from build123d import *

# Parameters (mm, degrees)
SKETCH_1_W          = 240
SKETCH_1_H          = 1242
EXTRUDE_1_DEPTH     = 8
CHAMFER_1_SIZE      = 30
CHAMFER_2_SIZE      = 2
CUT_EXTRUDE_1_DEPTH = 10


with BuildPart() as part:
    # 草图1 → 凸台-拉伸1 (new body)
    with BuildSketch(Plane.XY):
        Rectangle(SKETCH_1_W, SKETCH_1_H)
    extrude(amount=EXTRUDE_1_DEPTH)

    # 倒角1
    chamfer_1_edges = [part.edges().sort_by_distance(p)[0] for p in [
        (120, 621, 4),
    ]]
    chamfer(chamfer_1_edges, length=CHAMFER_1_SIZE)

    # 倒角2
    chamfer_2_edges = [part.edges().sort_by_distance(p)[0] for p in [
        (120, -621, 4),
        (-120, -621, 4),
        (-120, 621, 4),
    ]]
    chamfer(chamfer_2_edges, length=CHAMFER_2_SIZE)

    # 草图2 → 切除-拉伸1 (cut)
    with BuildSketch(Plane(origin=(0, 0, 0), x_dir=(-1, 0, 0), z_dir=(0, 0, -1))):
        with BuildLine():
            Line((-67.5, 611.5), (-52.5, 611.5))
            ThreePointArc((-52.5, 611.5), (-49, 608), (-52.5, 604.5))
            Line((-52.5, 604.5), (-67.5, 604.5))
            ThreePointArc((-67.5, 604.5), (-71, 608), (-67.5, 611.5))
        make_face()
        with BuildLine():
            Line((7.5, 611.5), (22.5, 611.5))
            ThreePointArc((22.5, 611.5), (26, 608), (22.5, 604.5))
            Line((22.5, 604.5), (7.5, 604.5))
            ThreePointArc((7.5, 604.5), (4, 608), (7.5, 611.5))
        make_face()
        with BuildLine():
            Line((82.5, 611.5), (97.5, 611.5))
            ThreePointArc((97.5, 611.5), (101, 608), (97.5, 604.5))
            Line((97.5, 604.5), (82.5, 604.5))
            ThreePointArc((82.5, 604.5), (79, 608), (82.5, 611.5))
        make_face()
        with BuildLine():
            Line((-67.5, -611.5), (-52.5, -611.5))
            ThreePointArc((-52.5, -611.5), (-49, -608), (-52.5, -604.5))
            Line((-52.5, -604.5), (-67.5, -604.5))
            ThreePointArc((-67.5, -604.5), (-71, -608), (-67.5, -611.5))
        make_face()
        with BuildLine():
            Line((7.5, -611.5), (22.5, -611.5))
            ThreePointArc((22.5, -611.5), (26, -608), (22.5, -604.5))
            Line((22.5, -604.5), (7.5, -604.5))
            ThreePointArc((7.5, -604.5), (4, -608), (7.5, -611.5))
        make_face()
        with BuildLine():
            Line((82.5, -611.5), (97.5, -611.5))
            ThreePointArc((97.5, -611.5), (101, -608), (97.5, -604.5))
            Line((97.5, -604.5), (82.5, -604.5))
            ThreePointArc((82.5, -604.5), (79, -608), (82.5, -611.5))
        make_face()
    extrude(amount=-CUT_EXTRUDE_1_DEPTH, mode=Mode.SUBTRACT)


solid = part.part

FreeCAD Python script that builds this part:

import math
import FreeCAD as App
import Part
import Sketcher

V = App.Vector
Q = App.Units.Quantity


def edges_at(feature, points):
    """Names of the edges that pass closest to the given points."""
    edges = feature.Shape.Edges
    near = lambda p: min(range(len(edges)), key=lambda i: edges[i].distToShape(Part.Vertex(*p))[0])
    return sorted({f"Edge{near(p) + 1}" for p in points})


def add_polygon(sketch, points):
    """Adds a closed chain of lines whose ends are joined by coincident constraints."""
    first, n = sketch.GeometryCount, len(points)
    for a, b in zip(points, points[1:] + points[:1]):
        sketch.addGeometry(Part.LineSegment(App.Vector(*a, 0), App.Vector(*b, 0)), False)
    for i in range(n):
        sketch.addConstraint(Sketcher.Constraint("Coincident", first + i, 2, first + (i + 1) % n, 1))

doc = App.newDocument("Part")
params = doc.addObject("Spreadsheet::Sheet", "Params")
for row, (alias, value) in enumerate([
    ("sketch1_width", "240 mm"),
    ("sketch1_height", "1242 mm"),
    ("pad1_length", "8 mm"),
    ("chamfer_size", "30 mm"),
    ("chamfer2_size", "2 mm"),
    ("sketch2_radius", "3.5 mm"),
    ("sketch2_width", "15 mm"),
    ("pocket1_length", "10 mm"),
], start=1):
    params.set(f"A{row}", alias)
    params.set(f"B{row}", "=" + value)
    params.setAlias(f"B{row}", alias)

body = doc.addObject("PartDesign::Body", "Body")

sketch1 = doc.addObject("Sketcher::SketchObject", "Sketch")
body.addObject(sketch1)
sketch1.AttachmentSupport = (doc.XY_Plane, [""])
sketch1.MapMode = "FlatFace"
add_polygon(sketch1, [(-120, 621), (-120, -621), (120, -621), (120, 621)])
sketch1.addConstraint([
    Sketcher.Constraint("Vertical", 0),
    Sketcher.Constraint("Horizontal", 1),
    Sketcher.Constraint("Vertical", 2),
    Sketcher.Constraint("Horizontal", 3),
    Sketcher.Constraint("Symmetric", 0, 2, 2, 2, -1, 1),
    Sketcher.Constraint("DistanceX", 1, 1, 1, 2, Q("240 mm")),
    Sketcher.Constraint("DistanceY", 0, 2, 0, 1, Q("1242 mm")),
])
sketch1.setExpression("Constraints[9]", "Params.sketch1_width")
sketch1.setExpression("Constraints[10]", "Params.sketch1_height")
pad1 = doc.addObject("PartDesign::Pad", "Pad")
body.addObject(pad1)
pad1.Profile = sketch1
pad1.setExpression("Length", "Params.pad1_length")
doc.recompute()

chamfer = doc.addObject("PartDesign::Chamfer", "Chamfer")
body.addObject(chamfer)
chamfer.Base = (pad1, edges_at(pad1, [(120, 621, 4)]))
chamfer.setExpression("Size", "Params.chamfer_size")
doc.recompute()

chamfer2 = doc.addObject("PartDesign::Chamfer", "Chamfer001")
body.addObject(chamfer2)
chamfer2.Base = (chamfer, edges_at(chamfer, [(120, -621, 4), (-120, -621, 4), (-120, 621, 4)]))
chamfer2.setExpression("Size", "Params.chamfer2_size")

sketch2 = doc.addObject("Sketcher::SketchObject", "Sketch001")
body.addObject(sketch2)
sketch2.AttachmentSupport = (doc.XY_Plane, [""])
sketch2.MapMode = "FlatFace"
sketch2.addGeometry([
    Part.LineSegment(V(52.5, 611.5, 0), V(67.5, 611.5, 0)),
    Part.ArcOfCircle(Part.Circle(V(67.5, 608, 0), V(0, 0, 1), 3.5), math.radians(-90), math.radians(90)),
    Part.LineSegment(V(67.5, 604.5, 0), V(52.5, 604.5, 0)),
    Part.ArcOfCircle(Part.Circle(V(52.5, 608, 0), V(0, 0, 1), 3.5), math.radians(90), math.radians(270)),
    Part.LineSegment(V(-22.5, 611.5, 0), V(-7.5, 611.5, 0)),
    Part.ArcOfCircle(Part.Circle(V(-7.5, 608, 0), V(0, 0, 1), 3.5), math.radians(-90), math.radians(90)),
    Part.LineSegment(V(-7.5, 604.5, 0), V(-22.5, 604.5, 0)),
    Part.ArcOfCircle(Part.Circle(V(-22.5, 608, 0), V(0, 0, 1), 3.5), math.radians(90), math.radians(270)),
    Part.LineSegment(V(-97.5, 611.5, 0), V(-82.5, 611.5, 0)),
    Part.ArcOfCircle(Part.Circle(V(-82.5, 608, 0), V(0, 0, 1), 3.5), math.radians(-90), math.radians(90)),
    Part.LineSegment(V(-82.5, 604.5, 0), V(-97.5, 604.5, 0)),
    Part.ArcOfCircle(Part.Circle(V(-97.5, 608, 0), V(0, 0, 1), 3.5), math.radians(90), math.radians(270)),
    Part.LineSegment(V(67.5, -611.5, 0), V(52.5, -611.5, 0)),
    Part.ArcOfCircle(Part.Circle(V(52.5, -608, 0), V(0, 0, 1), 3.5), math.radians(90), math.radians(270)),
    Part.LineSegment(V(52.5, -604.5, 0), V(67.5, -604.5, 0)),
    Part.ArcOfCircle(Part.Circle(V(67.5, -608, 0), V(0, 0, 1), 3.5), math.radians(-90), math.radians(90)),
    Part.LineSegment(V(-7.5, -611.5, 0), V(-22.5, -611.5, 0)),
    Part.ArcOfCircle(Part.Circle(V(-22.5, -608, 0), V(0, 0, 1), 3.5), math.radians(90), math.radians(270)),
    Part.LineSegment(V(-22.5, -604.5, 0), V(-7.5, -604.5, 0)),
    Part.ArcOfCircle(Part.Circle(V(-7.5, -608, 0), V(0, 0, 1), 3.5), math.radians(-90), math.radians(90)),
    Part.LineSegment(V(-82.5, -611.5, 0), V(-97.5, -611.5, 0)),
    Part.ArcOfCircle(Part.Circle(V(-97.5, -608, 0), V(0, 0, 1), 3.5), math.radians(90), math.radians(270)),
    Part.LineSegment(V(-97.5, -604.5, 0), V(-82.5, -604.5, 0)),
    Part.ArcOfCircle(Part.Circle(V(-82.5, -608, 0), V(0, 0, 1), 3.5), math.radians(-90), math.radians(90)),
], False)
sketch2.addConstraint([
    Sketcher.Constraint("Tangent", 0, 2, 1, 2),
    Sketcher.Constraint("Tangent", 1, 1, 2, 1),
    Sketcher.Constraint("Tangent", 2, 2, 3, 2),
    Sketcher.Constraint("Tangent", 3, 1, 0, 1),
    Sketcher.Constraint("Tangent", 4, 2, 5, 2),
    Sketcher.Constraint("Tangent", 5, 1, 6, 1),
    Sketcher.Constraint("Tangent", 6, 2, 7, 2),
    Sketcher.Constraint("Tangent", 7, 1, 4, 1),
    Sketcher.Constraint("Tangent", 8, 2, 9, 2),
    Sketcher.Constraint("Tangent", 9, 1, 10, 1),
    Sketcher.Constraint("Tangent", 10, 2, 11, 2),
    Sketcher.Constraint("Tangent", 11, 1, 8, 1),
    Sketcher.Constraint("Tangent", 12, 2, 13, 2),
    Sketcher.Constraint("Tangent", 13, 1, 14, 1),
    Sketcher.Constraint("Tangent", 14, 2, 15, 2),
    Sketcher.Constraint("Tangent", 15, 1, 12, 1),
    Sketcher.Constraint("Tangent", 16, 2, 17, 2),
    Sketcher.Constraint("Tangent", 17, 1, 18, 1),
    Sketcher.Constraint("Tangent", 18, 2, 19, 2),
    Sketcher.Constraint("Tangent", 19, 1, 16, 1),
    Sketcher.Constraint("Tangent", 20, 2, 21, 2),
    Sketcher.Constraint("Tangent", 21, 1, 22, 1),
    Sketcher.Constraint("Tangent", 22, 2, 23, 2),
    Sketcher.Constraint("Tangent", 23, 1, 20, 1),
    Sketcher.Constraint("Horizontal", 0),
    Sketcher.Constraint("Horizontal", 2),
    Sketcher.Constraint("Horizontal", 4),
    Sketcher.Constraint("Horizontal", 6),
    Sketcher.Constraint("Horizontal", 8),
    Sketcher.Constraint("Horizontal", 10),
    Sketcher.Constraint("Horizontal", 12),
    Sketcher.Constraint("Horizontal", 14),
    Sketcher.Constraint("Horizontal", 16),
    Sketcher.Constraint("Horizontal", 18),
    Sketcher.Constraint("Horizontal", 20),
    Sketcher.Constraint("Horizontal", 22),
    Sketcher.Constraint("Equal", 3, 5),
    Sketcher.Constraint("Equal", 7, 9),
    Sketcher.Constraint("Equal", 11, 13),
    Sketcher.Constraint("Equal", 15, 17),
    Sketcher.Constraint("Equal", 19, 21),
    Sketcher.Constraint("Symmetric", 3, 3, 13, 3, -1),
    Sketcher.Constraint("Symmetric", 7, 3, 17, 3, -1),
    Sketcher.Constraint("Symmetric", 11, 3, 21, 3, -1),
    Sketcher.Constraint("Horizontal", 3, 3, 5, 3),
    Sketcher.Constraint("Horizontal", 7, 3, 9, 3),
    Sketcher.Constraint("Vertical", 1, 3, 15, 3),
    Sketcher.Constraint("Vertical", 5, 3, 19, 3),
    Sketcher.Constraint("Vertical", 9, 3, 23, 3),
    Sketcher.Constraint("Equal", 2, 4),
    Sketcher.Constraint("Equal", 6, 8),
    Sketcher.Constraint("Radius", 1, Q("3.5 mm")),
    Sketcher.Constraint("DistanceX", 0, 1, 0, 2, Q("15 mm")),
    Sketcher.Constraint("DistanceY", -1, 1, 1, 3, Q("608 mm")),
    Sketcher.Constraint("DistanceX", 5, 3, 3, 3, Q("60 mm")),
    Sketcher.Constraint("DistanceX", 9, 3, 7, 3, Q("60 mm")),
    Sketcher.Constraint("DistanceX", -1, 1, 1, 3, Q("67.5 mm")),
])
sketch2.setExpression("Constraints[51]", "Params.sketch2_radius")
sketch2.setExpression("Constraints[52]", "Params.sketch2_width")
pocket1 = doc.addObject("PartDesign::Pocket", "Pocket")
body.addObject(pocket1)
pocket1.Profile = sketch2
pocket1.setExpression("Length", "Params.pocket1_length")
pocket1.Reversed = True

doc.recompute()
